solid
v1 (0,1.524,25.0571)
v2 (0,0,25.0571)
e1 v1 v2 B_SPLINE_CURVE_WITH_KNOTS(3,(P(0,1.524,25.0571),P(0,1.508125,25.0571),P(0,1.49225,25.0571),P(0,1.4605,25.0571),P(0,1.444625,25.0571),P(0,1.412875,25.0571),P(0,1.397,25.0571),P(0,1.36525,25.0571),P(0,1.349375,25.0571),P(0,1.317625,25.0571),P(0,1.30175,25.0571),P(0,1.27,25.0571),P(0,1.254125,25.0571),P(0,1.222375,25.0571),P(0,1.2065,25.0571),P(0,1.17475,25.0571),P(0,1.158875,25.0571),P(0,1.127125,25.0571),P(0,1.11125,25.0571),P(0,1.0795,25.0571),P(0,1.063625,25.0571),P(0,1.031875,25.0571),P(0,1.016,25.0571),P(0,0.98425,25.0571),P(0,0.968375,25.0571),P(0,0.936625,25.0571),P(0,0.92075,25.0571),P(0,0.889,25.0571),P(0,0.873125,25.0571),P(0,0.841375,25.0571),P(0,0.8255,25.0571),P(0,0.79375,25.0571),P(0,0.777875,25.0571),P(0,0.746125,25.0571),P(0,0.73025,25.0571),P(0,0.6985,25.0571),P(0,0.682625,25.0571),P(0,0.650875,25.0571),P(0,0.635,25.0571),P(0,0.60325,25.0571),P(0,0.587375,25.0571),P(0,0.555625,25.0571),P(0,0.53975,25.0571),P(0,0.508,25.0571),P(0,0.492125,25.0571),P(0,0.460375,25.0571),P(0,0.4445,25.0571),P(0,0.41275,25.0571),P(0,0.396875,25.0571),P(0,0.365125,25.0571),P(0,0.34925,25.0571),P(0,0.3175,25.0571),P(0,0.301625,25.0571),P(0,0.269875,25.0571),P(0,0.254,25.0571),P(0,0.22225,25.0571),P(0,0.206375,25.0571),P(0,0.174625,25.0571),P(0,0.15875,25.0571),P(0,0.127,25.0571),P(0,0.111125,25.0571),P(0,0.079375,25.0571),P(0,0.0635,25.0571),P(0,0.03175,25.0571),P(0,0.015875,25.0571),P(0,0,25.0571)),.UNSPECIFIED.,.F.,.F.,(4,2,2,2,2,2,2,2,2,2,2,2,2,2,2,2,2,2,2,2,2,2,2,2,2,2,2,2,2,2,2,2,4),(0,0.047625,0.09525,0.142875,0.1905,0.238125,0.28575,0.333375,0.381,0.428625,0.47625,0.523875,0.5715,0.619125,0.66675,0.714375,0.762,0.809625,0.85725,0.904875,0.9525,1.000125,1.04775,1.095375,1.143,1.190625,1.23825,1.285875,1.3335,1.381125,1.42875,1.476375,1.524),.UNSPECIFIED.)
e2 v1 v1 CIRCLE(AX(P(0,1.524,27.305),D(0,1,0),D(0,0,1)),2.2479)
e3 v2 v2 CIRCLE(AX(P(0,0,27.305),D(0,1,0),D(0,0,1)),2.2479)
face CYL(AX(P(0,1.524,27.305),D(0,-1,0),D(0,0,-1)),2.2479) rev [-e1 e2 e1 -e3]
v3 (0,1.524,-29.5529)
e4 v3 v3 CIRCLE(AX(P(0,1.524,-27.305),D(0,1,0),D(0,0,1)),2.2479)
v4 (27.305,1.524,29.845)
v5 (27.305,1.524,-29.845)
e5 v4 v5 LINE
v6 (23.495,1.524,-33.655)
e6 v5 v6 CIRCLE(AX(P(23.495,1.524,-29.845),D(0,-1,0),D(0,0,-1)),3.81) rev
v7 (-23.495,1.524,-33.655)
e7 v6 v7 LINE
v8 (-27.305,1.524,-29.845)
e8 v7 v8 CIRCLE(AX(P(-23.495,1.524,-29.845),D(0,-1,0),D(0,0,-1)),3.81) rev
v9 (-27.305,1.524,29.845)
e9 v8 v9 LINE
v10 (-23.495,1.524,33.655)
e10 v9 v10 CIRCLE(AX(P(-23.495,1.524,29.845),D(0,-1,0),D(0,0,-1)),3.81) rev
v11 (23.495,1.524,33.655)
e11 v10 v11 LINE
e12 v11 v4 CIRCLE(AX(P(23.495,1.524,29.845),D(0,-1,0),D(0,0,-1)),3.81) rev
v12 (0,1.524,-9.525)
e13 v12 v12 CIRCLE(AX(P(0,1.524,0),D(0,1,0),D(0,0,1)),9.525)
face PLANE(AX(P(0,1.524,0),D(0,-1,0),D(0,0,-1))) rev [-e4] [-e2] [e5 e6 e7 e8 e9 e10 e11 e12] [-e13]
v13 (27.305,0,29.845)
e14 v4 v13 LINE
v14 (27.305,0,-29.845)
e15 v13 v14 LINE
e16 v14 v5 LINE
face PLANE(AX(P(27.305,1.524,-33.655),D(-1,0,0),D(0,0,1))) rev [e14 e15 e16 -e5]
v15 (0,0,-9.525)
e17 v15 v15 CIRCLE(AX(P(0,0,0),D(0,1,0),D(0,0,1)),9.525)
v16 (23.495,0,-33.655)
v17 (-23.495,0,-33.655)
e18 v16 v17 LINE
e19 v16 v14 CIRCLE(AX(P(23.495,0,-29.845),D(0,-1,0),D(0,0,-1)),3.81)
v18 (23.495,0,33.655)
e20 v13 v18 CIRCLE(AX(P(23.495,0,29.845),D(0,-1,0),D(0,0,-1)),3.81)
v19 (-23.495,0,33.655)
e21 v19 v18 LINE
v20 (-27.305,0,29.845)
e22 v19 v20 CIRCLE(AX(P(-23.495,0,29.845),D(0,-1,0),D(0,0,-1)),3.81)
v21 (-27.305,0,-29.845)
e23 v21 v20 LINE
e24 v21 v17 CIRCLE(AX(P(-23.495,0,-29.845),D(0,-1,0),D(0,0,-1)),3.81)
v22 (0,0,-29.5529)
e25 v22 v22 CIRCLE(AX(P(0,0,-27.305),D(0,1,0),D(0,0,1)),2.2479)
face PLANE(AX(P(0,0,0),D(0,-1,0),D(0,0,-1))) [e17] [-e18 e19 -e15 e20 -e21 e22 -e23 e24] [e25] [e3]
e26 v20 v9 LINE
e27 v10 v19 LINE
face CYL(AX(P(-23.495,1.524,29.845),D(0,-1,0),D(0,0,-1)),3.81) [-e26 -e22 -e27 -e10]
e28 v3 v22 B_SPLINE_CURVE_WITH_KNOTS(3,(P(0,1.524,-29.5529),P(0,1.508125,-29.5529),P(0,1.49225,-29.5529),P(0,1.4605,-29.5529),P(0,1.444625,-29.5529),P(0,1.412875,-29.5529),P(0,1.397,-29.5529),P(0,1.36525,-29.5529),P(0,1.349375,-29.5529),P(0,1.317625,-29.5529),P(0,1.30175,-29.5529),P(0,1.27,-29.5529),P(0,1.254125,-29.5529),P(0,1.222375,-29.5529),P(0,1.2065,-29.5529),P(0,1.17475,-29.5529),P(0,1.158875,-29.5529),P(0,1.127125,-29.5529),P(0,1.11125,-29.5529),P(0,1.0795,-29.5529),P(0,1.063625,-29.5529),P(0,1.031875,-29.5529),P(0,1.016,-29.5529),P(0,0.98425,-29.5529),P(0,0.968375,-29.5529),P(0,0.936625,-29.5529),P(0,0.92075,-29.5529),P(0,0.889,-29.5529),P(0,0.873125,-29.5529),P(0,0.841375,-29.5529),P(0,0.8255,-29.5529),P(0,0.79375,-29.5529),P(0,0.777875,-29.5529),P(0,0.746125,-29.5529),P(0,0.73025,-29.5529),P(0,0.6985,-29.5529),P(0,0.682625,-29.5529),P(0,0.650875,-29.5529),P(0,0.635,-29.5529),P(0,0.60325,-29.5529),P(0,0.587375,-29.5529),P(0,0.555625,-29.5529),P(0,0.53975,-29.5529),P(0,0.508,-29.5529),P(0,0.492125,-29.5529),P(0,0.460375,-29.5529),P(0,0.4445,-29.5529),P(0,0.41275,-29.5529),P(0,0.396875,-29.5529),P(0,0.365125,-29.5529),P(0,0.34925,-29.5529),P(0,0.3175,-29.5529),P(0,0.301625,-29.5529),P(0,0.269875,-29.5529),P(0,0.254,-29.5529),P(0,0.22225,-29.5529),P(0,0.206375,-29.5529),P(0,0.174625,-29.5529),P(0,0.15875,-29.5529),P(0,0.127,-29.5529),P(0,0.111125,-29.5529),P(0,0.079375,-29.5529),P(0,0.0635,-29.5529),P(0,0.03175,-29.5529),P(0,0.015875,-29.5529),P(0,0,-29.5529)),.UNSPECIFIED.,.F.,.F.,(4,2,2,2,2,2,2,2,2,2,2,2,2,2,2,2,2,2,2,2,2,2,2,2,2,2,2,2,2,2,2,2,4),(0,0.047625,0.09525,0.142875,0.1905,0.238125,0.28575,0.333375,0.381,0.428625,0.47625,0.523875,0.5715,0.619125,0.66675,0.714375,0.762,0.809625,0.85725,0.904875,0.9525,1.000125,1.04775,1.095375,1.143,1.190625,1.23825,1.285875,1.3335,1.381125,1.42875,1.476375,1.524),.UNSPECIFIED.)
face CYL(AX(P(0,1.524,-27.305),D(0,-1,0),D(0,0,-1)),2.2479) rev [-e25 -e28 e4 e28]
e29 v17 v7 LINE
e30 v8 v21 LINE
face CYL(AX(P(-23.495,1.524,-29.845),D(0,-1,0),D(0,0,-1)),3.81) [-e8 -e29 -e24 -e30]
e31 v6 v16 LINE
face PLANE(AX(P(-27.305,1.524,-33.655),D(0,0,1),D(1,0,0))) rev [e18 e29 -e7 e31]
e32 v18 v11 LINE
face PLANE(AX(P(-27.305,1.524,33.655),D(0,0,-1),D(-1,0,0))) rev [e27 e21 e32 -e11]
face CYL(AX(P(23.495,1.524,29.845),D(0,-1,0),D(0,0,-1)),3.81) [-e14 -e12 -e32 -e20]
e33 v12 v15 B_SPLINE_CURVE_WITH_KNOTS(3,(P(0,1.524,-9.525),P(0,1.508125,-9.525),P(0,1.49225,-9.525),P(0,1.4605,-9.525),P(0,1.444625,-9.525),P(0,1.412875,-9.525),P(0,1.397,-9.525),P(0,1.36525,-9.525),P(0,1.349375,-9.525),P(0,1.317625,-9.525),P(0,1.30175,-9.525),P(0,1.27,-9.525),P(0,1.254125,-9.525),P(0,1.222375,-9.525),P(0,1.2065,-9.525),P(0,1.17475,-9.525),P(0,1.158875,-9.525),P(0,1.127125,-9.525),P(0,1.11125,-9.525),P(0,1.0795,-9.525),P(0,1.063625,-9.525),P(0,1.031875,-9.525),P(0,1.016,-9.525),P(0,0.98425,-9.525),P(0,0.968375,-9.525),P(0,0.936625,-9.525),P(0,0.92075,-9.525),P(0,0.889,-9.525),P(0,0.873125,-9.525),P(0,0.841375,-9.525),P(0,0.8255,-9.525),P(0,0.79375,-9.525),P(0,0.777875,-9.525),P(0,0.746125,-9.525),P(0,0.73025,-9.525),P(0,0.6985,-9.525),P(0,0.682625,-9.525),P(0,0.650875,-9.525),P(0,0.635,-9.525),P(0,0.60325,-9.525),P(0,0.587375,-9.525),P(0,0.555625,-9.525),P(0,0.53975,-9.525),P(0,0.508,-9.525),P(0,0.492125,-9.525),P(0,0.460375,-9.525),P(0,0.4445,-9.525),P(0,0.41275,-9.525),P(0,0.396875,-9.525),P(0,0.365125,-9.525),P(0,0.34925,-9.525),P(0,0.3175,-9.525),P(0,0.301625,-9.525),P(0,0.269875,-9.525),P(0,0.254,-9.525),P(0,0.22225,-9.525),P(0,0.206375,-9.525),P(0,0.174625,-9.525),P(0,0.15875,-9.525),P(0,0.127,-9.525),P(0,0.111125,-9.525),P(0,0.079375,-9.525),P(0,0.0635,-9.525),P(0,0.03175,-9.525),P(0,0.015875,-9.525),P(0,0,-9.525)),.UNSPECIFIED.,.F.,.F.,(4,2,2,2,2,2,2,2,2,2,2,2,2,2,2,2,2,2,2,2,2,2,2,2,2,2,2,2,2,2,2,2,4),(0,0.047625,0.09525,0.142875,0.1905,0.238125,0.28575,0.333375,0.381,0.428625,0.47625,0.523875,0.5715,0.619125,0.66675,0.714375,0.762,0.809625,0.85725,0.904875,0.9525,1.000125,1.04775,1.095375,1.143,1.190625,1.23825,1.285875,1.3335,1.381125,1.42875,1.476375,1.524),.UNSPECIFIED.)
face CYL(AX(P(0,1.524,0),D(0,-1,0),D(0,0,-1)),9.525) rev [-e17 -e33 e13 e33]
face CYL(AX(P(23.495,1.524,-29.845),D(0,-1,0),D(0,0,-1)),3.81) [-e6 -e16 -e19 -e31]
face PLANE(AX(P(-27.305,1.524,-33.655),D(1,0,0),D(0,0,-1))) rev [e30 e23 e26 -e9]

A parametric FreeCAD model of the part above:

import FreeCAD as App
import Part
import Sketcher

V = App.Vector
Q = App.Units.Quantity


def edges_at(feature, points):
    """Names of the edges that pass closest to the given points."""
    edges = feature.Shape.Edges
    near = lambda p: min(range(len(edges)), key=lambda i: edges[i].distToShape(Part.Vertex(*p))[0])
    return sorted({f"Edge{near(p) + 1}" for p in points})


def add_polygon(sketch, points):
    """Adds a closed chain of lines whose ends are joined by coincident constraints."""
    first, n = sketch.GeometryCount, len(points)
    for a, b in zip(points, points[1:] + points[:1]):
        sketch.addGeometry(Part.LineSegment(App.Vector(*a, 0), App.Vector(*b, 0)), False)
    for i in range(n):
        sketch.addConstraint(Sketcher.Constraint("Coincident", first + i, 2, first + (i + 1) % n, 1))

doc = App.newDocument("Part")
params = doc.addObject("Spreadsheet::Sheet", "Params")
for row, (alias, value) in enumerate([
    ("sketch1_diameter", "0.75 in"),
    ("sketch1_diameter2", "0.177 in"),
    ("sketch1_width", "2.15 in"),
    ("sketch1_height", "2.65 in"),
    ("pad1_length", "0.06 in"),
    ("fillet_radius", "0.15 in"),
], start=1):
    params.set(f"A{row}", alias)
    params.set(f"B{row}", "=" + value)
    params.setAlias(f"B{row}", alias)

body = doc.addObject("PartDesign::Body", "Body")

sketch1 = body.newObject("Sketcher::SketchObject", "Sketch")
sketch1.AttachmentSupport = (doc.getObject("XZ_Plane"), [""])
sketch1.MapMode = "FlatFace"
add_polygon(sketch1, [(-27.3, -33.7), (-27.3, 33.7), (27.3, 33.7), (27.3, -33.7)])
sketch1.addGeometry(Part.Circle(V(0, 27.3, 0), V(0, 0, 1), 2.2), False)
sketch1.addGeometry(Part.Circle(V(0, 0, 0), V(0, 0, 1), 9.5), False)
sketch1.addGeometry(Part.Circle(V(0, -27.3, 0), V(0, 0, 1), 2.2), False)
sketch1.addConstraint([
    Sketcher.Constraint("Vertical", 0),
    Sketcher.Constraint("Horizontal", 1),
    Sketcher.Constraint("Vertical", 2),
    Sketcher.Constraint("Horizontal", 3),
    Sketcher.Constraint("Coincident", 5, 3, -1, 1),
    Sketcher.Constraint("Equal", 4, 6),
    Sketcher.Constraint("Symmetric", 4, 3, 6, 3, -1, 1),
    Sketcher.Constraint("Symmetric", 0, 2, 2, 2, -1, 1),
    Sketcher.Constraint("PointOnObject", 4, 3, -2),
    Sketcher.Constraint("Diameter", 5, Q("0.75 in")),
    Sketcher.Constraint("Diameter", 4, Q("0.177 in")),
    Sketcher.Constraint("DistanceX", 1, 1, 1, 2, Q("2.15 in")),
    Sketcher.Constraint("DistanceY", 0, 1, 0, 2, Q("2.65 in")),
    Sketcher.Constraint("DistanceY", 6, 3, 0, 2, Q("2.4 in")),
])
sketch1.setExpression("Constraints[13]", "Params.sketch1_diameter")
sketch1.setExpression("Constraints[14]", "Params.sketch1_diameter2")
sketch1.setExpression("Constraints[15]", "Params.sketch1_width")
sketch1.setExpression("Constraints[16]", "Params.sketch1_height")
pad1 = body.newObject("PartDesign::Pad", "Pad")
pad1.Profile = sketch1
pad1.setExpression("Length", "Params.pad1_length")
pad1.Reversed = True
doc.recompute()

fillet = body.newObject("PartDesign::Fillet", "Fillet")
fillet.Base = (pad1, edges_at(pad1, [
    (27.305, 0.762, -33.655),
    (27.305, 0.762, 33.655),
    (-27.305, 0.762, 33.655),
    (-27.305, 0.762, -33.655),
]))
fillet.setExpression("Radius", "Params.fillet_radius")

doc.recompute()
